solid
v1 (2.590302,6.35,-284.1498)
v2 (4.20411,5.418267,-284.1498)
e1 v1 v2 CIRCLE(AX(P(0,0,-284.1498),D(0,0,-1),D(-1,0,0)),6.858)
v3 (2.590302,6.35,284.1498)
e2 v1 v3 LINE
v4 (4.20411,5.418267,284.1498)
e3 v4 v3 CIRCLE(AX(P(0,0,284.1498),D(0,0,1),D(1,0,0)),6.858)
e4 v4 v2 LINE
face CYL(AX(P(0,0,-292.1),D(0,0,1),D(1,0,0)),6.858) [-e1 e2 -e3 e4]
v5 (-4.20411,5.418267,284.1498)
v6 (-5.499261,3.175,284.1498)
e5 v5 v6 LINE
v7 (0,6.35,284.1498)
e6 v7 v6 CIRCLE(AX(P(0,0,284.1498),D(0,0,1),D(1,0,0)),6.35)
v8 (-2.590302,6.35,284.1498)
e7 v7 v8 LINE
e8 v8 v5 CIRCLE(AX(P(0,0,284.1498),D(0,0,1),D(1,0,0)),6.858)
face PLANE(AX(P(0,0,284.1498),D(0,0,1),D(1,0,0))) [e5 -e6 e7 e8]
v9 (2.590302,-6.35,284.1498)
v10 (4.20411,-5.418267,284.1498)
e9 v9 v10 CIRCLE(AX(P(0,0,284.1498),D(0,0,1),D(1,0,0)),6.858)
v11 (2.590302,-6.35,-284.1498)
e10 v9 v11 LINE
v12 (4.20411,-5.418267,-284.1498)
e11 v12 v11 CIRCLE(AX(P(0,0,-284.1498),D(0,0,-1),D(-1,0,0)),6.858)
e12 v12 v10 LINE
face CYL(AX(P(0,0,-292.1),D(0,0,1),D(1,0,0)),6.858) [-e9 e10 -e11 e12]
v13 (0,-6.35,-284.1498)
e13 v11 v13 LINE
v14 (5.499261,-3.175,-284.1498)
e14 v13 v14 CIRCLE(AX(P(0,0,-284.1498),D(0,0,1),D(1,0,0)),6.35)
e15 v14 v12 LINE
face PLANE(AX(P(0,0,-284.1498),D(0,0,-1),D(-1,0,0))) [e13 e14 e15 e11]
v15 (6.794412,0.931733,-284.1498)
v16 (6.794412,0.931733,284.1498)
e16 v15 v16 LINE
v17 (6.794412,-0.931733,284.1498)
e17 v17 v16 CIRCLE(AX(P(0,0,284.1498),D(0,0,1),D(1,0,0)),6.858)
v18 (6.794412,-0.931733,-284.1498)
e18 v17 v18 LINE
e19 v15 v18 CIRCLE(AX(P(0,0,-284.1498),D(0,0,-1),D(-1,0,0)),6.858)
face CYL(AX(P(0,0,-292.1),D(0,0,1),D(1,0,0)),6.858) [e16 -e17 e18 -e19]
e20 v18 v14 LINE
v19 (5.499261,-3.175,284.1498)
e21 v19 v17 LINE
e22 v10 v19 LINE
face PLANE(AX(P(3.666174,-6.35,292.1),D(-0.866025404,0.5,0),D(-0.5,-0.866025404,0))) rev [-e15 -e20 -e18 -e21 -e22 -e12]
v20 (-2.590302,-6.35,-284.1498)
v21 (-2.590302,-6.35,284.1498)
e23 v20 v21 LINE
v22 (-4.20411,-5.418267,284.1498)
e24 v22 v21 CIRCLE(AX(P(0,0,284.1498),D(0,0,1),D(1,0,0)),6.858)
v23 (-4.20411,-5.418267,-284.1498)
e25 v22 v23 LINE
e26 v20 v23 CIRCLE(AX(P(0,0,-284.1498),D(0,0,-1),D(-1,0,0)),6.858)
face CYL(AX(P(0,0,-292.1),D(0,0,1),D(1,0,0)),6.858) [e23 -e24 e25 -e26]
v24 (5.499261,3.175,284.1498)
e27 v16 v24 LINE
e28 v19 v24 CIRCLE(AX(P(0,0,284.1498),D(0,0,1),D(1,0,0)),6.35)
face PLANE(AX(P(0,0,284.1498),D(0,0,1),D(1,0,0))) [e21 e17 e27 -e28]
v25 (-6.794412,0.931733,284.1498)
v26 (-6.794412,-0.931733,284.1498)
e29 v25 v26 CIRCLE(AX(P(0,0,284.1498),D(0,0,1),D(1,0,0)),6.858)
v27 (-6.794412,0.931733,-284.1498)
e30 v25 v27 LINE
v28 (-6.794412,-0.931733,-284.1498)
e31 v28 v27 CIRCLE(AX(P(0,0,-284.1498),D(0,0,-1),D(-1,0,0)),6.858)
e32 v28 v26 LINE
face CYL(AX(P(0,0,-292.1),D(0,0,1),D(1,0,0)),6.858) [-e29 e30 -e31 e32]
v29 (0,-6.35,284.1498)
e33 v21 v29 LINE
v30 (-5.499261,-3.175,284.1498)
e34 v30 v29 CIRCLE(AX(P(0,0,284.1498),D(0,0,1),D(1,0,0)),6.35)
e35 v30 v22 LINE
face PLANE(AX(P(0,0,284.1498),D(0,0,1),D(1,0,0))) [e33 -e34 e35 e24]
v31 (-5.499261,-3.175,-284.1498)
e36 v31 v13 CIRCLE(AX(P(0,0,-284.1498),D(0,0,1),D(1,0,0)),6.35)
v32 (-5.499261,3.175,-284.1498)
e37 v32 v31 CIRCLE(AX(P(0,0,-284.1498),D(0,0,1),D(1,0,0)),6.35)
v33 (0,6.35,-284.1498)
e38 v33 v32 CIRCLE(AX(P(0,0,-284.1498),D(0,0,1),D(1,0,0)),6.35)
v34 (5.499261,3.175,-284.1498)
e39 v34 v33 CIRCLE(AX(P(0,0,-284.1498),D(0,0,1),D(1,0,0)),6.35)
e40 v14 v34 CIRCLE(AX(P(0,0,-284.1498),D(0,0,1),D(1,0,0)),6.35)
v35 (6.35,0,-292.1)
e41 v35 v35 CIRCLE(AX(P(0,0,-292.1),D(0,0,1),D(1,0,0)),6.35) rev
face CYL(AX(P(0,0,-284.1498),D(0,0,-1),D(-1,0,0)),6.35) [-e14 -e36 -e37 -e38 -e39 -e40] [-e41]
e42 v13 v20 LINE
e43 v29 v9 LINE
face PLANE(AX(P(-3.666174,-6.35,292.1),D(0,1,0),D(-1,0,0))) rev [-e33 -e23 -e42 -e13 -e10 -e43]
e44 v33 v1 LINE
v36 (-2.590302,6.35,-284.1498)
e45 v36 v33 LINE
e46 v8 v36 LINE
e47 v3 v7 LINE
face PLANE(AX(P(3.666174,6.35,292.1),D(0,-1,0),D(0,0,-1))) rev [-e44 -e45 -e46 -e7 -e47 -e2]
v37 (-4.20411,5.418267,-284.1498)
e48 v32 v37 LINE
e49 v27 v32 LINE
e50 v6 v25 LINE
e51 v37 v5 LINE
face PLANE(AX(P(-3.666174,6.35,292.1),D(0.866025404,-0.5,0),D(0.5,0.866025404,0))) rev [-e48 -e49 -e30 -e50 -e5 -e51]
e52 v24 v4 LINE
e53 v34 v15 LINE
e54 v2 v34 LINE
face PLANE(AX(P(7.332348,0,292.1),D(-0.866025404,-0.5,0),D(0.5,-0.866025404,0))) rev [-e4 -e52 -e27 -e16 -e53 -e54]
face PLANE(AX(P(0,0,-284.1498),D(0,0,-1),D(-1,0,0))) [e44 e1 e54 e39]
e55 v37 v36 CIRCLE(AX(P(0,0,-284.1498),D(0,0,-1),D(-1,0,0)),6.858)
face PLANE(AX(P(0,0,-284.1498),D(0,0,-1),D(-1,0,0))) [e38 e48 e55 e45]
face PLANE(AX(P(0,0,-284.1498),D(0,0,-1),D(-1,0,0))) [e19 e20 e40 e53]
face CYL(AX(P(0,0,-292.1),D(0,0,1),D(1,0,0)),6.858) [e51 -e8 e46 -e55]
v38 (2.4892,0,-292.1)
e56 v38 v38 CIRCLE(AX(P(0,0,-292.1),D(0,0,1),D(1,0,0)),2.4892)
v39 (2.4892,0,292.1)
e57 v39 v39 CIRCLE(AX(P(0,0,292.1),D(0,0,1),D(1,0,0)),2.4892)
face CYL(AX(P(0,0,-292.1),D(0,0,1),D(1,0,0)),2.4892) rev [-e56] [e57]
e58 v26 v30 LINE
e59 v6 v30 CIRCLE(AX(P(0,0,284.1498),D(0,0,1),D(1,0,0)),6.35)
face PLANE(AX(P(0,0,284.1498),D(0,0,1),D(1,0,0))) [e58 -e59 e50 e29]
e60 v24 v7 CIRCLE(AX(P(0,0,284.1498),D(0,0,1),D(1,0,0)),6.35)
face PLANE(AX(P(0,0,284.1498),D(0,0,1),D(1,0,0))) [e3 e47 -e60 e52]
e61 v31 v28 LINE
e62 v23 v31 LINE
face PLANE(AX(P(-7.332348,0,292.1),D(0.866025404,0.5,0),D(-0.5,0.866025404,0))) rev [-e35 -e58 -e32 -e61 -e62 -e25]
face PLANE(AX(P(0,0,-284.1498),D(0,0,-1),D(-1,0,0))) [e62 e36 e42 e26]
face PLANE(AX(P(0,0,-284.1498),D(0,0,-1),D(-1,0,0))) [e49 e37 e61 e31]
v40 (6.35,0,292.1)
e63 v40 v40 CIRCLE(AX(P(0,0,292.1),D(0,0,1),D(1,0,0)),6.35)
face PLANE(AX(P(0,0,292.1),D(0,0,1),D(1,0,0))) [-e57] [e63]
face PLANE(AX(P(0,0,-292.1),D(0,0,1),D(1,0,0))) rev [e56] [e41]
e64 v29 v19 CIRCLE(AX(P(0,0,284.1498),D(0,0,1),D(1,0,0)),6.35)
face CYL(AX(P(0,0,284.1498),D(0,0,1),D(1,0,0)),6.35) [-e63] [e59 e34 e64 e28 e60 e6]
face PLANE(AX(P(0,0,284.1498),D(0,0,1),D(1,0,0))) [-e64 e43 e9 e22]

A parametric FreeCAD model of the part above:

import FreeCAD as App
import Part
import Sketcher
from FreeCAD import Vector
Q = App.Units.Quantity


def add_polygon(sketch, points):
    """Adds a closed chain of lines whose ends are joined by coincident constraints."""
    first, n = sketch.GeometryCount, len(points)
    for a, b in zip(points, points[1:] + points[:1]):
        sketch.addGeometry(Part.LineSegment(App.Vector(*a, 0), App.Vector(*b, 0)), False)
    for i in range(n):
        sketch.addConstraint(Sketcher.Constraint("Coincident", first + i, 2, first + (i + 1) % n, 1))

doc = App.newDocument("Part")
params = doc.addObject("Spreadsheet::Sheet", "Params")
for row, (alias, value) in enumerate([
    ("pad1_length", "23 in"),
    ("sketch2_diameter", "0.5 in"),
    ("pocket1_length", "0.313 in"),
    ("sketch3_diameter", "0.54 in"),
    ("sketch4_diameter", "0.196 in"),
], start=1):
    params.set(f"A{row}", alias)
    params.set(f"B{row}", "=" + value)
    params.setAlias(f"B{row}", alias)

body = doc.addObject("PartDesign::Body", "Body")

# Sketch on XY plane
sketch1 = body.newObject("Sketcher::SketchObject", "Sketch")
sketch1.AttachmentSupport = (doc.getObject("XY_Plane"), [""])
sketch1.MapMode = "FlatFace"
add_polygon(sketch1, [(7.332348, 0), (3.666174, 6.35), (-3.666174, 6.35), (-7.332348, 0), (-3.666174, -6.35), (3.666174, -6.35)])  # lines 0-5
sketch1.addConstraint(Sketcher.Constraint("Horizontal", 1))
sketch1.addConstraint(Sketcher.Constraint("Horizontal", 4))
sketch1.addConstraint(Sketcher.Constraint("Symmetric", 0, 2, 3, 2, -1, 1))
sketch1.addConstraint(Sketcher.Constraint("Symmetric", 2, 2, 5, 2, -1, 1))
sketch1.addConstraint(Sketcher.Constraint("PointOnObject", 2, 2, -1))
sketch1.addConstraint(Sketcher.Constraint("Parallel", 2, 5))
sketch1.addConstraint(Sketcher.Constraint("Vertical", 1, 2, 3, 2))
sketch1.addConstraint(Sketcher.Constraint("Angle", 0, Q("120 deg")))
sketch1.addConstraint(Sketcher.Constraint("DistanceY", 3, 2, 1, 2, Q("0.5 in")))
sketch1.addConstraint(Sketcher.Constraint("DistanceX", 1, 2, 1, 1, 7.332348))
pad1 = body.newObject("PartDesign::Pad", "Pad")
pad1.Profile = sketch1
pad1.setExpression("Length", "Params.pad1_length")
pad1.Midplane = True

# Sketch on XY plane
sketch2 = body.newObject("Sketcher::SketchObject", "Sketch001")
sketch2.AttachmentSupport = (doc.getObject("XY_Plane"), [""])
sketch2.MapMode = "FlatFace"
sketch2.AttachmentOffset = App.Placement(Vector(0, 0, 11.5 * 25.4), App.Rotation())
add_polygon(sketch2, [(-66.784, 65.802), (-66.784, -65.802), (66.784, -65.802), (66.784, 65.802)])  # lines 0-3
sketch2.addGeometry(Part.Circle(Vector(0, 0, 0), Vector(0, 0, 1), 6.35), False)  # 4
sketch2.addConstraint(Sketcher.Constraint("Vertical", 0))
sketch2.addConstraint(Sketcher.Constraint("Horizontal", 1))
sketch2.addConstraint(Sketcher.Constraint("Vertical", 2))
sketch2.addConstraint(Sketcher.Constraint("Horizontal", 3))
sketch2.addConstraint(Sketcher.Constraint("Coincident", 4, 3, -1, 1))
sketch2.addConstraint(Sketcher.Constraint("Symmetric", 0, 2, 2, 2, -1, 1))
sketch2.addConstraint(Sketcher.Constraint("Diameter", 4, Q("0.5 in")))
sketch2.addConstraint(Sketcher.Constraint("DistanceX", 1, 1, 1, 2, 133.568))
sketch2.addConstraint(Sketcher.Constraint("DistanceY", 0, 2, 0, 1, 131.604))
sketch2.setExpression("Constraints[10]", "Params.sketch2_diameter")
pocket1 = body.newObject("PartDesign::Pocket", "Pocket")
pocket1.Profile = sketch2
pocket1.setExpression("Length", "Params.pocket1_length")
doc.recompute()

mirrored = body.newObject("PartDesign::Mirrored", "Mirrored")
mirrored.Originals = [pocket1]
mirrored.MirrorPlane = (doc.getObject("XY_Plane"), [""])
body.Tip = mirrored

# Sketch on XY plane
sketch3 = body.newObject("Sketcher::SketchObject", "Sketch002")
sketch3.AttachmentSupport = (doc.getObject("XY_Plane"), [""])
sketch3.MapMode = "FlatFace"
sketch3.AttachmentOffset = App.Placement(Vector(0, 0, 11.5 * 25.4), App.Rotation())
add_polygon(sketch3, [(-66.784, 65.802), (-66.784, -65.802), (66.784, -65.802), (66.784, 65.802)])  # lines 0-3
sketch3.addGeometry(Part.Circle(Vector(0, 0, 0), Vector(0, 0, 1), 6.858), False)  # 4
sketch3.addConstraint(Sketcher.Constraint("Vertical", 0))
sketch3.addConstraint(Sketcher.Constraint("Horizontal", 1))
sketch3.addConstraint(Sketcher.Constraint("Vertical", 2))
sketch3.addConstraint(Sketcher.Constraint("Horizontal", 3))
sketch3.addConstraint(Sketcher.Constraint("Coincident", 4, 3, -1, 1))
sketch3.addConstraint(Sketcher.Constraint("Symmetric", 0, 2, 2, 2, -1, 1))
sketch3.addConstraint(Sketcher.Constraint("Diameter", 4, Q("0.54 in")))
sketch3.addConstraint(Sketcher.Constraint("DistanceX", 1, 1, 1, 2, 133.568))
sketch3.addConstraint(Sketcher.Constraint("DistanceY", 0, 2, 0, 1, 131.604))
sketch3.setExpression("Constraints[10]", "Params.sketch3_diameter")
pocket2 = body.newObject("PartDesign::Pocket", "Pocket001")
pocket2.Profile = sketch3
pocket2.Type = "ThroughAll"

# Sketch on XY plane
sketch4 = body.newObject("Sketcher::SketchObject", "Sketch003")
sketch4.AttachmentSupport = (doc.getObject("XY_Plane"), [""])
sketch4.MapMode = "FlatFace"
sketch4.AttachmentOffset = App.Placement(Vector(0, 0, 11.5 * 25.4), App.Rotation())
sketch4.addGeometry(Part.Circle(Vector(0, 0, 0), Vector(0, 0, 1), 2.4892), False)
sketch4.addConstraint(Sketcher.Constraint("Coincident", 0, 3, -1, 1))
sketch4.addConstraint(Sketcher.Constraint("Diameter", 0, Q("0.196 in")))
sketch4.setExpression("Constraints[1]", "Params.sketch4_diameter")
pocket3 = body.newObject("PartDesign::Pocket", "Pocket002")
pocket3.Profile = sketch4
pocket3.Type = "ThroughAll"

doc.recompute()
